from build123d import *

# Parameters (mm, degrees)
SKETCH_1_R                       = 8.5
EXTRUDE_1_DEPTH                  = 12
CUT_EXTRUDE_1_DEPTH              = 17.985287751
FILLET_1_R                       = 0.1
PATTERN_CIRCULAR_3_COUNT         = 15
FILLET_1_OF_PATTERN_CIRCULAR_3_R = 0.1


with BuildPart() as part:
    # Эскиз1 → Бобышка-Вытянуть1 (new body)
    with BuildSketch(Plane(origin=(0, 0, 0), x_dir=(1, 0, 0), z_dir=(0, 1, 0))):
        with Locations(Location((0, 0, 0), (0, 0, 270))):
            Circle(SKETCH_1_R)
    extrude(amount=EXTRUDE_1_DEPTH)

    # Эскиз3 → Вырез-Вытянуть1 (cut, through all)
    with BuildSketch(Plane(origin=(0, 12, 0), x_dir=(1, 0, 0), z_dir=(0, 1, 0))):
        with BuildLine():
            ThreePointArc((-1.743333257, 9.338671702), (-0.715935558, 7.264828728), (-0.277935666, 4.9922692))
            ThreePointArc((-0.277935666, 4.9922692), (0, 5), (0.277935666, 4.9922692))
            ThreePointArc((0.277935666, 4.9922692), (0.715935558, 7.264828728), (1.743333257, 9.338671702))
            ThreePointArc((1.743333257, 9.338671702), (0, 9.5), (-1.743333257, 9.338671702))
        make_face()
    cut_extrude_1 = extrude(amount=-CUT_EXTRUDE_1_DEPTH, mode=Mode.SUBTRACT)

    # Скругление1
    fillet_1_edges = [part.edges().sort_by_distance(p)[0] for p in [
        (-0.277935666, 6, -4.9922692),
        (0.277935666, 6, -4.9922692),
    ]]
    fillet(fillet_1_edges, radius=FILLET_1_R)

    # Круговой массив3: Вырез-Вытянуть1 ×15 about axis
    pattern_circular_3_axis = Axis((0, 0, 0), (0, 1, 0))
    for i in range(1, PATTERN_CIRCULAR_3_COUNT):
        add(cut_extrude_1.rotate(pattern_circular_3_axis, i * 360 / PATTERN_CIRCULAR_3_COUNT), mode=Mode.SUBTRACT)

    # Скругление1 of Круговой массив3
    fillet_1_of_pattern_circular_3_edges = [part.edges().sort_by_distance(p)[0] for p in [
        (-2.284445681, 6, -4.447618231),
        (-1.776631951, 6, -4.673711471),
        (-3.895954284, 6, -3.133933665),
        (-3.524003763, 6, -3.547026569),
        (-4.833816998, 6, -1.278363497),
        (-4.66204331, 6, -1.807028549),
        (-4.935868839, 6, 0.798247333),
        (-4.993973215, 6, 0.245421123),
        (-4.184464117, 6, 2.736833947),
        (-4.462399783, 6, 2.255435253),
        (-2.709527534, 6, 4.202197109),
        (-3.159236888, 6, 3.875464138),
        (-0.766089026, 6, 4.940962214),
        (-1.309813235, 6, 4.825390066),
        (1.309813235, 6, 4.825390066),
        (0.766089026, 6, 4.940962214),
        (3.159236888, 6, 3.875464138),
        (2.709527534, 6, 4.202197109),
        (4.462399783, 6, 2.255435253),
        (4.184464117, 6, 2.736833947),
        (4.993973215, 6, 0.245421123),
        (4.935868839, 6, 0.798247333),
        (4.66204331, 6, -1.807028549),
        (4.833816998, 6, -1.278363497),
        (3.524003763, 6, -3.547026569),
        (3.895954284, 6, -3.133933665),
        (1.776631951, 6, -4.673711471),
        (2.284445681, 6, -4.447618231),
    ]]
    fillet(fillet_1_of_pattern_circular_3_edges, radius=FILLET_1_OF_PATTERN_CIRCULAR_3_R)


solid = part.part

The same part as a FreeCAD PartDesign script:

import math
import FreeCAD as App
import Part
import Sketcher
Q = App.Units.Quantity


def edges_at(feature, points):
    """Names of the edges that pass closest to the given points."""
    edges = feature.Shape.Edges
    near = lambda p: min(range(len(edges)), key=lambda i: edges[i].distToShape(Part.Vertex(*p))[0])
    return sorted({f"Edge{near(p) + 1}" for p in points})

doc = App.newDocument("Part")
params = doc.addObject("Spreadsheet::Sheet", "Params")
for row, (alias, value) in enumerate([
    ("sketch1_diameter", "17 mm"),
    ("pad1_length", "12 mm"),
    ("sketch2_radius", "5 mm"),
    ("sketch2_radius2", "9.5 mm"),
    ("fillet_radius", "0.1 mm"),
    ("fillet2_radius", "0.1 mm"),
], start=1):
    params.set(f"A{row}", alias)
    params.set(f"B{row}", "=" + value)
    params.setAlias(f"B{row}", alias)

body = doc.addObject("PartDesign::Body", "Body")

sketch1 = body.newObject("Sketcher::SketchObject", "Sketch")
sketch1.AttachmentSupport = (doc.getObject("XZ_Plane"), [""])
sketch1.MapMode = "FlatFace"
sketch1.addGeometry(Part.Circle(App.Vector(0, 0, 0), App.Vector(0, 0, 1), 8), False)
sketch1.addConstraint(Sketcher.Constraint("Coincident", 0, 3, -1, 1))
sketch1.addConstraint(Sketcher.Constraint("Diameter", 0, Q("17 mm")))
sketch1.setExpression("Constraints[1]", "Params.sketch1_diameter")
pad1 = body.newObject("PartDesign::Pad", "Pad")
pad1.Profile = sketch1
pad1.setExpression("Length", "Params.pad1_length")
pad1.Reversed = True

sketch2 = body.newObject("Sketcher::SketchObject", "Sketch001")
sketch2.AttachmentSupport = (doc.getObject("XZ_Plane"), [""])
sketch2.MapMode = "FlatFace"
sketch2.AttachmentOffset = App.Placement(App.Vector(0, 0, -12), App.Rotation())
sketch2.addGeometry(Part.ArcOfCircle(Part.Circle(App.Vector(-8.9, -4.5, 0), App.Vector(0, 0, 1), 8.6), math.radians(-34), math.radians(-3)), False)
sketch2.addGeometry(Part.ArcOfCircle(Part.Circle(App.Vector(0, 0, 0), App.Vector(0, 0, 1), 5), math.radians(-93.19), math.radians(-86.81)), False)
sketch2.addGeometry(Part.ArcOfCircle(Part.Circle(App.Vector(8.9, -4.5, 0), App.Vector(0, 0, 1), 8.6), math.radians(-177), math.radians(-146)), False)
sketch2.addGeometry(Part.ArcOfCircle(Part.Circle(App.Vector(0, 0, 0), App.Vector(0, 0, 1), 9.5), math.radians(-101), math.radians(-79)), False)
sketch2.addConstraint(Sketcher.Constraint("Coincident", 0, 2, 1, 1))
sketch2.addConstraint(Sketcher.Constraint("Coincident", 1, 2, 2, 1))
sketch2.addConstraint(Sketcher.Constraint("Coincident", 2, 2, 3, 2))
sketch2.addConstraint(Sketcher.Constraint("Coincident", 3, 1, 0, 1))
sketch2.addConstraint(Sketcher.Constraint("Coincident", 1, 3, -1, 1))
sketch2.addConstraint(Sketcher.Constraint("Coincident", 3, 3, -1, 1))
sketch2.addConstraint(Sketcher.Constraint("Equal", 0, 2))
sketch2.addConstraint(Sketcher.Constraint("Symmetric", 0, 3, 2, 3, -2))
sketch2.addConstraint(Sketcher.Constraint("Radius", 1, Q("5 mm")))
sketch2.addConstraint(Sketcher.Constraint("Radius", 3, Q("9.5 mm")))
sketch2.addConstraint(Sketcher.Constraint("Radius", 0, Q("8.611595 mm")))
sketch2.addConstraint(Sketcher.Constraint("DistanceY", 0, 2, -1, 1, Q("4.992269 mm")))
sketch2.addConstraint(Sketcher.Constraint("DistanceY", 2, 2, -1, 1, Q("9.338672 mm")))
sketch2.setExpression("Constraints[8]", "Params.sketch2_radius")
sketch2.setExpression("Constraints[9]", "Params.sketch2_radius2")
pocket1 = body.newObject("PartDesign::Pocket", "Pocket")
pocket1.Profile = sketch2
pocket1.Type = "ThroughAll"
pocket1.Reversed = True
doc.recompute()

fillet = body.newObject("PartDesign::Fillet", "Fillet")
fillet.Base = (pocket1, edges_at(pocket1, [(-0.278, 6, -4.992), (0.278, 6, -4.992)]))
fillet.setExpression("Radius", "Params.fillet_radius")
doc.recompute()

polarpattern = body.newObject("PartDesign::PolarPattern", "PolarPattern")
polarpattern.Originals = [pocket1]
polarpattern.Axis = (doc.getObject("Y_Axis"), [""])
polarpattern.Angle = 360
polarpattern.Occurrences = 15
body.Tip = polarpattern
doc.recompute()

fillet2 = body.newObject("PartDesign::Fillet", "Fillet001")
fillet2.Base = (polarpattern, edges_at(polarpattern, [
    (-2.284, 6, -4.448),
    (-1.777, 6, -4.674),
    (-3.896, 6, -3.134),
    (-3.524, 6, -3.547),
    (-4.834, 6, -1.278),
    (-4.662, 6, -1.807),
    (-4.936, 6, 0.798),
    (-4.994, 6, 0.245),
    (-4.184, 6, 2.737),
    (-4.462, 6, 2.255),
    (-2.71, 6, 4.202),
    (-3.159, 6, 3.875),
    (-0.766, 6, 4.941),
    (-1.31, 6, 4.825),
    (1.31, 6, 4.825),
    (0.766, 6, 4.941),
    (3.159, 6, 3.875),
    (2.71, 6, 4.202),
    (4.462, 6, 2.255),
    (4.184, 6, 2.737),
    (4.994, 6, 0.245),
    (4.936, 6, 0.798),
    (4.662, 6, -1.807),
    (4.834, 6, -1.278),
    (3.524, 6, -3.547),
    (3.896, 6, -3.134),
    (1.777, 6, -4.674),
    (2.284, 6, -4.448),
]))
fillet2.setExpression("Radius", "Params.fillet2_radius")

doc.recompute()
